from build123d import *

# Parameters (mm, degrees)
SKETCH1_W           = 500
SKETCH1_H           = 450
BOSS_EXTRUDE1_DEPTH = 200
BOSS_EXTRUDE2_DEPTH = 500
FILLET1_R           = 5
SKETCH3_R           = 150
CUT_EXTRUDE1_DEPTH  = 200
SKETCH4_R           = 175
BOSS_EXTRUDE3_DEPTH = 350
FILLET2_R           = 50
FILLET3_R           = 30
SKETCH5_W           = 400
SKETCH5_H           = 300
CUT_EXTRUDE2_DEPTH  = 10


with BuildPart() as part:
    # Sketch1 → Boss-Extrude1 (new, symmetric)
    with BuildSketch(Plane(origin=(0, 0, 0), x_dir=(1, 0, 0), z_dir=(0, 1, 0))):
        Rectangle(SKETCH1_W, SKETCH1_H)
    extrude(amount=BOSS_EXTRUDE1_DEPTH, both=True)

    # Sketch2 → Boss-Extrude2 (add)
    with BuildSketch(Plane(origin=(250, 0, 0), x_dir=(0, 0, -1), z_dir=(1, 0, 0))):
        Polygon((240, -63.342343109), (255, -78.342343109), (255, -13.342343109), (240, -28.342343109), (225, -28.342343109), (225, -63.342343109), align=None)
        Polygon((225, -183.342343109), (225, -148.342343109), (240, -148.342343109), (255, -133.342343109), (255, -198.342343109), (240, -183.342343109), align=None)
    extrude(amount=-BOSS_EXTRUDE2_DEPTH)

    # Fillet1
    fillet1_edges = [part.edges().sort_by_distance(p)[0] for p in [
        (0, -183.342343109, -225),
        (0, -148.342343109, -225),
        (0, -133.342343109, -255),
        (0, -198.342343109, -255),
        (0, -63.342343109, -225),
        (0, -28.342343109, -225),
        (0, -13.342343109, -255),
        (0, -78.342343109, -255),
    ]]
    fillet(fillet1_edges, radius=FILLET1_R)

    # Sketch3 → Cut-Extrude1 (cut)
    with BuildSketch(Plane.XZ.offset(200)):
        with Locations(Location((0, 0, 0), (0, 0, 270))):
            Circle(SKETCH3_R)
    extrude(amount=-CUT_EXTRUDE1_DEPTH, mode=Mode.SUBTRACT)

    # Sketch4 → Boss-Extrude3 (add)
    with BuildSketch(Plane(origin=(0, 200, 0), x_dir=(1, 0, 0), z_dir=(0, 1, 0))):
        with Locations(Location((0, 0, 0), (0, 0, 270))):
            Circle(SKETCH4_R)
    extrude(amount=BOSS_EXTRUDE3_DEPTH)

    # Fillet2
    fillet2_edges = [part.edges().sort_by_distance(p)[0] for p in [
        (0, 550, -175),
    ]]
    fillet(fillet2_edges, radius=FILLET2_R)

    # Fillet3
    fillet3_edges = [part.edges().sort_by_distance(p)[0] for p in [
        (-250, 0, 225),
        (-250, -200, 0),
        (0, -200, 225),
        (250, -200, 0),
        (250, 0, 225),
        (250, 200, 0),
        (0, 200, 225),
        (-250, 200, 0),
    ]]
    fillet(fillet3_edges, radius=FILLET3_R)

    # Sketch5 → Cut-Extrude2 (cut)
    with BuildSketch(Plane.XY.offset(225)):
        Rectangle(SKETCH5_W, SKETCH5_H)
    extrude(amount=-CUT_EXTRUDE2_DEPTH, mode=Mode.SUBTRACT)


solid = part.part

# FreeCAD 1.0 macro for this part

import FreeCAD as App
import Part
import Sketcher
Q = App.Units.Quantity


def edges_at(feature, points):
    """Names of the edges that pass closest to the given points."""
    edges = feature.Shape.Edges
    near = lambda p: min(range(len(edges)), key=lambda i: edges[i].distToShape(Part.Vertex(*p))[0])
    return sorted({f"Edge{near(p) + 1}" for p in points})


def add_polygon(sketch, points):
    """Adds a closed chain of lines whose ends are joined by coincident constraints."""
    first, n = sketch.GeometryCount, len(points)
    for a, b in zip(points, points[1:] + points[:1]):
        sketch.addGeometry(Part.LineSegment(App.Vector(*a, 0), App.Vector(*b, 0)), False)
    for i in range(n):
        sketch.addConstraint(Sketcher.Constraint("Coincident", first + i, 2, first + (i + 1) % n, 1))

doc = App.newDocument("Part")
body = doc.addObject("PartDesign::Body", "Body")

sketch1 = body.newObject("Sketcher::SketchObject", "Sketch")
sketch1.AttachmentSupport = (doc.getObject("XZ_Plane"), [""])
sketch1.MapMode = "FlatFace"
add_polygon(sketch1, [(-250, -225), (-250, 225), (250, 225), (250, -225)])
sketch1.addConstraint(Sketcher.Constraint("Vertical", 0))
sketch1.addConstraint(Sketcher.Constraint("Horizontal", 1))
sketch1.addConstraint(Sketcher.Constraint("Vertical", 2))
sketch1.addConstraint(Sketcher.Constraint("Horizontal", 3))
sketch1.addConstraint(Sketcher.Constraint("Symmetric", 0, 2, 2, 2, -1, 1))
sketch1.addConstraint(Sketcher.Constraint("DistanceX", 1, 1, 1, 2, Q("500 mm")))
sketch1.addConstraint(Sketcher.Constraint("DistanceY", 0, 1, 0, 2, Q("450 mm")))
pad1 = body.newObject("PartDesign::Pad", "Pad")
pad1.Profile = sketch1
pad1.Length = 400
pad1.Midplane = True

sketch2 = body.newObject("Sketcher::SketchObject", "Sketch001")
sketch2.AttachmentSupport = (doc.getObject("YZ_Plane"), [""])
sketch2.MapMode = "FlatFace"
sketch2.AttachmentOffset = App.Placement(App.Vector(0, 0, 250), App.Rotation())
add_polygon(sketch2, [(-63, -240), (-78, -255), (-13, -255), (-28, -240), (-28, -225), (-63, -225)])
add_polygon(sketch2, [(-148, -225), (-183, -225), (-183, -240), (-198, -255), (-133, -255), (-148, -240)])
sketch2.addConstraint(Sketcher.Constraint("Horizontal", 1))
sketch2.addConstraint(Sketcher.Constraint("Vertical", 3))
sketch2.addConstraint(Sketcher.Constraint("Horizontal", 4))
sketch2.addConstraint(Sketcher.Constraint("Vertical", 5))
sketch2.addConstraint(Sketcher.Constraint("Horizontal", 6))
sketch2.addConstraint(Sketcher.Constraint("Vertical", 7))
sketch2.addConstraint(Sketcher.Constraint("Horizontal", 9))
sketch2.addConstraint(Sketcher.Constraint("Vertical", 11))
sketch2.addConstraint(Sketcher.Constraint("Perpendicular", 0, 2))
sketch2.addConstraint(Sketcher.Constraint("Perpendicular", 2, 8))
sketch2.addConstraint(Sketcher.Constraint("Perpendicular", 8, 10))
sketch2.addConstraint(Sketcher.Constraint("Horizontal", 2, 2, 5, 2))
sketch2.addConstraint(Sketcher.Constraint("Horizontal", 4, 2, 6, 2))
sketch2.addConstraint(Sketcher.Constraint("Horizontal", 5, 2, 7, 2))
sketch2.addConstraint(Sketcher.Constraint("Horizontal", 1, 2, 8, 2))
sketch2.addConstraint(Sketcher.Constraint("Horizontal", 7, 2, 10, 2))
sketch2.addConstraint(Sketcher.Constraint("Equal", 4, 6))
sketch2.addConstraint(Sketcher.Constraint("Equal", 0, 2))
sketch2.addConstraint(Sketcher.Constraint("DistanceX", 1, 1, 1, 2, Q("65 mm")))
sketch2.addConstraint(Sketcher.Constraint("DistanceX", 4, 2, 4, 1, Q("35 mm")))
sketch2.addConstraint(Sketcher.Constraint("DistanceY", 3, 1, 3, 2, Q("15 mm")))
sketch2.addConstraint(Sketcher.Constraint("DistanceY", 0, 2, -1, 1, Q("255 mm")))
sketch2.addConstraint(Sketcher.Constraint("DistanceX", 6, 2, 0, 2, Q("105 mm")))
sketch2.addConstraint(Sketcher.Constraint("DistanceX", 0, 2, -1, 1, Q("78.342343 mm")))
pad2 = body.newObject("PartDesign::Pad", "Pad001")
pad2.Profile = sketch2
pad2.Length = 500
pad2.Reversed = True
doc.recompute()

fillet = body.newObject("PartDesign::Fillet", "Fillet")
fillet.Base = (pad2, edges_at(pad2, [
    (0, -183.342, -225),
    (0, -148.342, -225),
    (0, -133.342, -255),
    (0, -198.342, -255),
    (0, -63.342, -225),
    (0, -28.342, -225),
    (0, -13.342, -255),
    (0, -78.342, -255),
]))
fillet.Radius = 5

sketch3 = body.newObject("Sketcher::SketchObject", "Sketch002")
sketch3.AttachmentSupport = (doc.getObject("XZ_Plane"), [""])
sketch3.MapMode = "FlatFace"
sketch3.AttachmentOffset = App.Placement(App.Vector(0, 0, 200), App.Rotation())
sketch3.addGeometry(Part.Circle(App.Vector(0, 0, 0), App.Vector(0, 0, 1), 150), False)
sketch3.addConstraint(Sketcher.Constraint("Coincident", 0, 3, -1, 1))
sketch3.addConstraint(Sketcher.Constraint("Diameter", 0, Q("300 mm")))
pocket1 = body.newObject("PartDesign::Pocket", "Pocket")
pocket1.Profile = sketch3
pocket1.Length = 200

sketch4 = body.newObject("Sketcher::SketchObject", "Sketch003")
sketch4.AttachmentSupport = (doc.getObject("XZ_Plane"), [""])
sketch4.MapMode = "FlatFace"
sketch4.AttachmentOffset = App.Placement(App.Vector(0, 0, -200), App.Rotation())
sketch4.addGeometry(Part.Circle(App.Vector(0, 0, 0), App.Vector(0, 0, 1), 175), False)
sketch4.addConstraint(Sketcher.Constraint("Coincident", 0, 3, -1, 1))
sketch4.addConstraint(Sketcher.Constraint("Diameter", 0, Q("350 mm")))
pad3 = body.newObject("PartDesign::Pad", "Pad002")
pad3.Profile = sketch4
pad3.Length = 350
pad3.Reversed = True
doc.recompute()

fillet2 = body.newObject("PartDesign::Fillet", "Fillet001")
fillet2.Base = (pad3, edges_at(pad3, [(0, 550, -175)]))
fillet2.Radius = 50
doc.recompute()

fillet3 = body.newObject("PartDesign::Fillet", "Fillet002")
fillet3.Base = (fillet2, edges_at(fillet2, [
    (-250, 0, 225),
    (-250, -200, 0),
    (0, -200, 225),
    (250, -200, 0),
    (250, 0, 225),
    (250, 200, 0),
    (0, 200, 225),
    (-250, 200, 0),
]))
fillet3.Radius = 30

sketch5 = body.newObject("Sketcher::SketchObject", "Sketch004")
sketch5.AttachmentSupport = (doc.getObject("XY_Plane"), [""])
sketch5.MapMode = "FlatFace"
sketch5.AttachmentOffset = App.Placement(App.Vector(0, 0, 225), App.Rotation())
add_polygon(sketch5, [(-200, 150), (-200, -150), (200, -150), (200, 150)])
sketch5.addConstraint(Sketcher.Constraint("Vertical", 0))
sketch5.addConstraint(Sketcher.Constraint("Horizontal", 1))
sketch5.addConstraint(Sketcher.Constraint("Vertical", 2))
sketch5.addConstraint(Sketcher.Constraint("Horizontal", 3))
sketch5.addConstraint(Sketcher.Constraint("Symmetric", 0, 2, 2, 2, -1, 1))
sketch5.addConstraint(Sketcher.Constraint("DistanceX", 1, 1, 1, 2, Q("400 mm")))
sketch5.addConstraint(Sketcher.Constraint("DistanceY", 0, 2, 0, 1, Q("300 mm")))
pocket2 = body.newObject("PartDesign::Pocket", "Pocket001")
pocket2.Profile = sketch5
pocket2.Length = 10

doc.recompute()
